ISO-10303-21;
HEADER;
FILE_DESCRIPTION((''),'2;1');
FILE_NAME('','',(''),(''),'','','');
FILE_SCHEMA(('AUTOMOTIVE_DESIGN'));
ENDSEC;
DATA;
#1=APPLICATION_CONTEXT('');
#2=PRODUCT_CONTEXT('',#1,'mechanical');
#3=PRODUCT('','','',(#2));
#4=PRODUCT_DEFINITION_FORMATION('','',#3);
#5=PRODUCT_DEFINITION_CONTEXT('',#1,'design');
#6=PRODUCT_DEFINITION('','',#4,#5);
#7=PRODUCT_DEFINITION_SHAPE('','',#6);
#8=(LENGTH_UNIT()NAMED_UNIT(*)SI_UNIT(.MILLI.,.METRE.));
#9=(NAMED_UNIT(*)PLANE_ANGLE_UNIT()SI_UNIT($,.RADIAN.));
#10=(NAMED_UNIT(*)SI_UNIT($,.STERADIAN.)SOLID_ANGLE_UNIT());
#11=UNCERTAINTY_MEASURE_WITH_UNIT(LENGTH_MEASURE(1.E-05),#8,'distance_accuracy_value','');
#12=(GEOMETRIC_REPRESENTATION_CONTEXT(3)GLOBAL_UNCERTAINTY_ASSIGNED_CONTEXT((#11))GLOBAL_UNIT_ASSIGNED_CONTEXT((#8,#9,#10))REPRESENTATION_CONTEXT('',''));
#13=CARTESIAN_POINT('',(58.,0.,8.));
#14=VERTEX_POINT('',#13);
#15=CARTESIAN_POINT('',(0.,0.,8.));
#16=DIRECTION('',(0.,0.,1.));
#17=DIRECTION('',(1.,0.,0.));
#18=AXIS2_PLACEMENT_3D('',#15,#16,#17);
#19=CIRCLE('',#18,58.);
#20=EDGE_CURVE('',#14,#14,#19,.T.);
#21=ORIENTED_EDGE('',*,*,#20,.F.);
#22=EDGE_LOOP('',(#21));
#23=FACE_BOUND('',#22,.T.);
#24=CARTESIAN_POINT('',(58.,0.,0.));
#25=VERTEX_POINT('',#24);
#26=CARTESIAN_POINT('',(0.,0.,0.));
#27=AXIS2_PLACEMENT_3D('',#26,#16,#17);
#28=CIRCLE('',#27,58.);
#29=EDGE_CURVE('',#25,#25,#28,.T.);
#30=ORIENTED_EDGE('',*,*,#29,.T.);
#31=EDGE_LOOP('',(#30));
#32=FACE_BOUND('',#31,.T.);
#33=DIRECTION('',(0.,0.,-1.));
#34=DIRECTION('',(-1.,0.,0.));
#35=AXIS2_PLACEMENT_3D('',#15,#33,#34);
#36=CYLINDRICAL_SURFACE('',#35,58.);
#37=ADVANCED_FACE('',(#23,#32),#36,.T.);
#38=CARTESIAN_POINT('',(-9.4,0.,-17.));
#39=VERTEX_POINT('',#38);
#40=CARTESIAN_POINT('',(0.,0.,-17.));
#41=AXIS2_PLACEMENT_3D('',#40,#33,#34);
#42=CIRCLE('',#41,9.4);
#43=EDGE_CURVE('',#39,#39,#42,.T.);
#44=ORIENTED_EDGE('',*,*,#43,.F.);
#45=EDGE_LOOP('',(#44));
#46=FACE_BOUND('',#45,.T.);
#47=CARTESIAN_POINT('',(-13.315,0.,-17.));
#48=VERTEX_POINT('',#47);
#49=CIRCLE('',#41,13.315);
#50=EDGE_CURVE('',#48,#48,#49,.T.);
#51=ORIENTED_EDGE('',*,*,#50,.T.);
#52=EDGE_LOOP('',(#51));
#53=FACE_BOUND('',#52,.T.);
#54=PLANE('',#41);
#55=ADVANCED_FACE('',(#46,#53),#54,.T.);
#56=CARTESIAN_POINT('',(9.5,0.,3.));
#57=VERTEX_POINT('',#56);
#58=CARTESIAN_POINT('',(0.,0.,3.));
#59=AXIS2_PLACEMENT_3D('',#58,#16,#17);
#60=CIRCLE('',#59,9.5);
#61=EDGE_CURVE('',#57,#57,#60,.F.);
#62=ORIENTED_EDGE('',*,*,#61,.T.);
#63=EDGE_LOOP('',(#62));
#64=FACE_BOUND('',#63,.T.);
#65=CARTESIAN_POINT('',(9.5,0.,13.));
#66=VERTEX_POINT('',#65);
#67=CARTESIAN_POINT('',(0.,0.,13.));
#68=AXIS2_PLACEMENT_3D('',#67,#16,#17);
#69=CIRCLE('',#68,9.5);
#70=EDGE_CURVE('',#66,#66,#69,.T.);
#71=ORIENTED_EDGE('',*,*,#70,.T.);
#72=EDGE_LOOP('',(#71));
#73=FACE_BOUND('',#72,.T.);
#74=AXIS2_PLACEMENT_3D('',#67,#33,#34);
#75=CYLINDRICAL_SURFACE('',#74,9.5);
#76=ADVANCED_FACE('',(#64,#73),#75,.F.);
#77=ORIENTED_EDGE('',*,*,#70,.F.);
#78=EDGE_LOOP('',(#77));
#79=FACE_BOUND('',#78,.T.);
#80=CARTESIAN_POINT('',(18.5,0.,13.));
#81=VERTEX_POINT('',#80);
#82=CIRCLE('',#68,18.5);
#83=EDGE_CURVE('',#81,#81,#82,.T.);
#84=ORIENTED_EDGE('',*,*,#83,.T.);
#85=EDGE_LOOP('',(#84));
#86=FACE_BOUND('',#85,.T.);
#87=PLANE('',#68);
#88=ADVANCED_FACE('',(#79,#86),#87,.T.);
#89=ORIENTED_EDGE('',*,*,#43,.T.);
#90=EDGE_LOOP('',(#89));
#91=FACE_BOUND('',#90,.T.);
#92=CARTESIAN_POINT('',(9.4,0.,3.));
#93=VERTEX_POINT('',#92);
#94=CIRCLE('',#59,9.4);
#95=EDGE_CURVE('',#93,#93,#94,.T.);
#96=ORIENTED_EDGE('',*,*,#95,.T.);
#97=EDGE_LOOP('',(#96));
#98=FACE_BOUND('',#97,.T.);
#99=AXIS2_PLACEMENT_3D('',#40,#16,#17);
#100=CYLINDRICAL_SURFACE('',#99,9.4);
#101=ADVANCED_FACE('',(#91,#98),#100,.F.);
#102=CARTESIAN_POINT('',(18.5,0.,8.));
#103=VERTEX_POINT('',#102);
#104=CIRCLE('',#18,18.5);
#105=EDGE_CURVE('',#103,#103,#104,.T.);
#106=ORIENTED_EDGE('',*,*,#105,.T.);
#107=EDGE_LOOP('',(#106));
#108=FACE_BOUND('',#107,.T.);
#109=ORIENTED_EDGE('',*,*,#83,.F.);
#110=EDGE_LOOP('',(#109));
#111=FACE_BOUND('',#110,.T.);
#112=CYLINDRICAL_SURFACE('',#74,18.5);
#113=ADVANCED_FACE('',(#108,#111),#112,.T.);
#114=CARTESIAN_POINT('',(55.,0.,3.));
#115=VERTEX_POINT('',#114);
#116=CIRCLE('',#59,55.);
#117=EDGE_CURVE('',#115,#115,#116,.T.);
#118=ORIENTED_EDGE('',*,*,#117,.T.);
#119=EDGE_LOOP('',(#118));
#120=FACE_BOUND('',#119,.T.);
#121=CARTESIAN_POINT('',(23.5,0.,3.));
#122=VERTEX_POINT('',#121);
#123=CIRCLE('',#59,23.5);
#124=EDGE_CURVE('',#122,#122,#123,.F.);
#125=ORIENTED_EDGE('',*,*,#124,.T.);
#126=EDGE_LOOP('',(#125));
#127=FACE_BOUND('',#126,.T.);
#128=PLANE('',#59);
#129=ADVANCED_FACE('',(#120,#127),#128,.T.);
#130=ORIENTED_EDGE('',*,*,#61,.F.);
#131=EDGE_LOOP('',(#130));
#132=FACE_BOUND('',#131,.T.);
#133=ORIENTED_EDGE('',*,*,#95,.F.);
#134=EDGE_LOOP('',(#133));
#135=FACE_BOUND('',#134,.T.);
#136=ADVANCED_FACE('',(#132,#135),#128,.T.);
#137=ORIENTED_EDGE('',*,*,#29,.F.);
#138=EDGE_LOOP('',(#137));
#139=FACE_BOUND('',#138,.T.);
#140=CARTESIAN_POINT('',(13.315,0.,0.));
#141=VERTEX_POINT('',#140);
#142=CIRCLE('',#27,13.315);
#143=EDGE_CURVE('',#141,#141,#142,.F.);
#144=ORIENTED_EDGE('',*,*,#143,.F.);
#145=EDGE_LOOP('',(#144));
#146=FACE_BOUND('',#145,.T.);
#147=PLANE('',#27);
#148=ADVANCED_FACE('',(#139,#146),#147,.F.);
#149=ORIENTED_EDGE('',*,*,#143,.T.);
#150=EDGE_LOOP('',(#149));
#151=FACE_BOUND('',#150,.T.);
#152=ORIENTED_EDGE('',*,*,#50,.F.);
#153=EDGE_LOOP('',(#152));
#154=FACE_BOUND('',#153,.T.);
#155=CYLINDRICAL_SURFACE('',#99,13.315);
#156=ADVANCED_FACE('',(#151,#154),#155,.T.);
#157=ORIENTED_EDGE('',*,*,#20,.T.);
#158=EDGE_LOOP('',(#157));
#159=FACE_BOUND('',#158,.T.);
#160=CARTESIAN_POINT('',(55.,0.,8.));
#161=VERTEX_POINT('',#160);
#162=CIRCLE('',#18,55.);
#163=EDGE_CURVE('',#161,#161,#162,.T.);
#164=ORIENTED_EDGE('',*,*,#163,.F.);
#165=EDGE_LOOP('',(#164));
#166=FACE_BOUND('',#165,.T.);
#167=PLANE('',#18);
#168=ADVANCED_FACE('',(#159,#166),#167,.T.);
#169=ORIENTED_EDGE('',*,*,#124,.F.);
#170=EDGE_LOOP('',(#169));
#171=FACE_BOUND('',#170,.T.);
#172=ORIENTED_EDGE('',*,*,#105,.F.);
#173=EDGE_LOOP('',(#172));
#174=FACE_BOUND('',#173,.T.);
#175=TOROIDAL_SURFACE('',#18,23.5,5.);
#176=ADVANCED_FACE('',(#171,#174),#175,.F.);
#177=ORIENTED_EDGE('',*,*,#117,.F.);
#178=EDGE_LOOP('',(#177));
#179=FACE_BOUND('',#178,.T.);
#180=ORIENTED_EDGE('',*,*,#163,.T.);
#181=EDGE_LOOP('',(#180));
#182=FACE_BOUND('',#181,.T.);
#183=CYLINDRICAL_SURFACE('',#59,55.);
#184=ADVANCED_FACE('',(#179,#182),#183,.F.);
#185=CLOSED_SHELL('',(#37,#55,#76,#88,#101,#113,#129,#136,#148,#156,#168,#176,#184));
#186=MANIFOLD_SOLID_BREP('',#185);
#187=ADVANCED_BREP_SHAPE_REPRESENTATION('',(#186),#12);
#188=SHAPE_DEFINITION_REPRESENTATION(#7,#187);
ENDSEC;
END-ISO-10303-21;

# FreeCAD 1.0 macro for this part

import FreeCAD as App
import Part
import Sketcher
from FreeCAD import Vector


def edges_at(feature, points):
    """Names of the edges that pass closest to the given points."""
    edges = feature.Shape.Edges
    near = lambda p: min(range(len(edges)), key=lambda i: edges[i].distToShape(Part.Vertex(*p))[0])
    return sorted({f"Edge{near(p) + 1}" for p in points})

doc = App.newDocument("Part")
body = doc.addObject("PartDesign::Body", "Body")

# Sketch on XY plane
sketch1 = body.newObject("Sketcher::SketchObject", "Sketch")
sketch1.AttachmentSupport = (doc.getObject("XY_Plane"), [""])
sketch1.MapMode = "FlatFace"
sketch1.addGeometry(Part.Circle(Vector(0, 0, 0), Vector(0, 0, 1), 58), False)
sketch1.addConstraint([
    Sketcher.Constraint("Coincident", 0, 3, -1, 1),
    Sketcher.Constraint("Diameter", 0, 116.0),
])
pad1 = body.newObject("PartDesign::Pad", "Pad")
pad1.Profile = sketch1
pad1.Length = 8

# Sketch on XY plane
sketch2 = body.newObject("Sketcher::SketchObject", "Sketch001")
sketch2.AttachmentSupport = (doc.getObject("XY_Plane"), [""])
sketch2.MapMode = "FlatFace"
sketch2.AttachmentOffset = App.Placement(Vector(0, 0, 8), App.Rotation())
sketch2.addGeometry(Part.Circle(Vector(0, 0, 0), Vector(0, 0, 1), 55), False)
sketch2.addConstraint([
    Sketcher.Constraint("Coincident", 0, 3, -1, 1),
    Sketcher.Constraint("Diameter", 0, 110.0),
])
pocket1 = body.newObject("PartDesign::Pocket", "Pocket")
pocket1.Profile = sketch2
pocket1.Length = 5

# Sketch on XY plane
sketch3 = body.newObject("Sketcher::SketchObject", "Sketch002")
sketch3.AttachmentSupport = (doc.getObject("XY_Plane"), [""])
sketch3.MapMode = "FlatFace"
sketch3.AttachmentOffset = App.Placement(Vector(0, 0, 3), App.Rotation())
sketch3.addGeometry([
    Part.Circle(Vector(0, 0, 0), Vector(0, 0, 1), 18.5),
    Part.Circle(Vector(0, 0, 0), Vector(0, 0, 1), 9.5),
], False)
sketch3.addConstraint([
    Sketcher.Constraint("Coincident", 0, 3, -1, 1),
    Sketcher.Constraint("Coincident", 1, 3, -1, 1),
    Sketcher.Constraint("Diameter", 0, 37.0),
    Sketcher.Constraint("Diameter", 1, 19.0),
])
pad2 = body.newObject("PartDesign::Pad", "Pad001")
pad2.Profile = sketch3
pad2.Length = 10
doc.recompute()

fillet = body.newObject("PartDesign::Fillet", "Fillet")
fillet.Base = (pad2, edges_at(pad2, [(-18.5, 0, 3)]))
fillet.Radius = 5

# Sketch on XY plane
sketch4 = body.newObject("Sketcher::SketchObject", "Sketch003")
sketch4.AttachmentSupport = (doc.getObject("XY_Plane"), [""])
sketch4.MapMode = "FlatFace"
sketch4.addGeometry([
    Part.Circle(Vector(0, 0, 0), Vector(0, 0, 1), 13.315),
    Part.Circle(Vector(0, 0, 0), Vector(0, 0, 1), 9.4),
], False)
sketch4.addConstraint([
    Sketcher.Constraint("Coincident", 0, 3, -1, 1),
    Sketcher.Constraint("Coincident", 1, 3, -1, 1),
    Sketcher.Constraint("Diameter", 1, 18.8),
    Sketcher.Constraint("Diameter", 0, 26.63),
])
pad3 = body.newObject("PartDesign::Pad", "Pad002")
pad3.Profile = sketch4
pad3.Length = 17
pad3.Reversed = True

# Sketch on XY plane
sketch5 = body.newObject("Sketcher::SketchObject", "Sketch004")
sketch5.AttachmentSupport = (doc.getObject("XY_Plane"), [""])
sketch5.MapMode = "FlatFace"
sketch5.AttachmentOffset = App.Placement(Vector(0, 0, 17), App.Rotation())
sketch5.addGeometry(Part.Circle(Vector(0, 0, 0), Vector(0, 0, 1), 9.4), False)
sketch5.addConstraint([
    Sketcher.Constraint("Coincident", 0, 3, -1, 1),
    Sketcher.Constraint("Diameter", 0, 18.8),
])
pocket2 = body.newObject("PartDesign::Pocket", "Pocket001")
pocket2.Profile = sketch5
pocket2.Length = 17

doc.recompute()
